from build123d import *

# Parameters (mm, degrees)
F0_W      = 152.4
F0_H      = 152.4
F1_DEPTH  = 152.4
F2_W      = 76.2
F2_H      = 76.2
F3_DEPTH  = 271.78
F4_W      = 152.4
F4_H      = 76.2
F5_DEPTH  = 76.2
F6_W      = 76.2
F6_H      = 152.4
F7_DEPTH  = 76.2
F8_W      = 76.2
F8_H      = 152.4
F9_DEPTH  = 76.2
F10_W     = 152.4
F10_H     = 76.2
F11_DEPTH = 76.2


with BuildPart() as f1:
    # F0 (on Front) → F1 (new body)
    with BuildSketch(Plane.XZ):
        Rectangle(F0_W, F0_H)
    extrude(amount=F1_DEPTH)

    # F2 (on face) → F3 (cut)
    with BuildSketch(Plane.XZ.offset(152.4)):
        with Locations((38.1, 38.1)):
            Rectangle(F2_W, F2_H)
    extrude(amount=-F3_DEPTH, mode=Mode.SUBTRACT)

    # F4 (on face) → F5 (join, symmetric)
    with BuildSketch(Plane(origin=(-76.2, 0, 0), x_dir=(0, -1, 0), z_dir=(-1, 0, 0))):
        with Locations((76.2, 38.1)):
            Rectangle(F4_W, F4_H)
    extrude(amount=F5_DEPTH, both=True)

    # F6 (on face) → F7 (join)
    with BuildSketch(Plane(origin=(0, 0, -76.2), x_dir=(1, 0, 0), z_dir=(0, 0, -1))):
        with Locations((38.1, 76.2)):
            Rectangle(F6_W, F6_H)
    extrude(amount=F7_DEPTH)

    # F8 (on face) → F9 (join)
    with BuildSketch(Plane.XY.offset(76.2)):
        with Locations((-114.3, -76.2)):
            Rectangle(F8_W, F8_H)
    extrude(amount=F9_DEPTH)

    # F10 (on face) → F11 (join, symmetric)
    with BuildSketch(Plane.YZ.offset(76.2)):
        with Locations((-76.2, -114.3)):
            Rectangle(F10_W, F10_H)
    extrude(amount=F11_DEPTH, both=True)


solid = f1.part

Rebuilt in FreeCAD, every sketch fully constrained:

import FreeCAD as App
import Part
import Sketcher
from FreeCAD import Vector
Q = App.Units.Quantity


def add_polygon(sketch, points):
    """Adds a closed chain of lines whose ends are joined by coincident constraints."""
    first, n = sketch.GeometryCount, len(points)
    for a, b in zip(points, points[1:] + points[:1]):
        sketch.addGeometry(Part.LineSegment(App.Vector(*a, 0), App.Vector(*b, 0)), False)
    for i in range(n):
        sketch.addConstraint(Sketcher.Constraint("Coincident", first + i, 2, first + (i + 1) % n, 1))

doc = App.newDocument("Part")
body = doc.addObject("PartDesign::Body", "Body")

sketch1 = body.newObject("Sketcher::SketchObject", "Sketch")
sketch1.AttachmentSupport = (doc.getObject("XZ_Plane"), [""])
sketch1.MapMode = "FlatFace"
add_polygon(sketch1, [(-76.2, 76.2), (-76.2, -76.2), (76.2, -76.2), (76.2, 76.2)])
sketch1.addConstraint(Sketcher.Constraint("Vertical", 0))
sketch1.addConstraint(Sketcher.Constraint("Horizontal", 1))
sketch1.addConstraint(Sketcher.Constraint("Vertical", 2))
sketch1.addConstraint(Sketcher.Constraint("Horizontal", 3))
sketch1.addConstraint(Sketcher.Constraint("Symmetric", 0, 2, 2, 2, -1, 1))
sketch1.addConstraint(Sketcher.Constraint("Equal", 3, 0))
sketch1.addConstraint(Sketcher.Constraint("DistanceX", 1, 1, 1, 2, Q("6 in")))
pad1 = body.newObject("PartDesign::Pad", "Pad")
pad1.Profile = sketch1
pad1.Length = Q("6 in")

sketch2 = body.newObject("Sketcher::SketchObject", "Sketch001")
sketch2.AttachmentSupport = (doc.getObject("XZ_Plane"), [""])
sketch2.MapMode = "FlatFace"
sketch2.AttachmentOffset = App.Placement(Vector(0, 0, 6 * 25.4), App.Rotation())
add_polygon(sketch2, [(0, 76.2), (0, 0), (76.2, 0), (76.2, 76.2)])
sketch2.addConstraint(Sketcher.Constraint("Vertical", 0))
sketch2.addConstraint(Sketcher.Constraint("Horizontal", 1))
sketch2.addConstraint(Sketcher.Constraint("Vertical", 2))
sketch2.addConstraint(Sketcher.Constraint("Horizontal", 3))
sketch2.addConstraint(Sketcher.Constraint("Coincident", 0, 2, -1, 1))
sketch2.addConstraint(Sketcher.Constraint("Equal", 3, 0))
sketch2.addConstraint(Sketcher.Constraint("DistanceX", 1, 1, 1, 2, Q("3 in")))
pocket1 = body.newObject("PartDesign::Pocket", "Pocket")
pocket1.Profile = sketch2
pocket1.Length = Q("10.7 in")

sketch3 = body.newObject("Sketcher::SketchObject", "Sketch002")
sketch3.AttachmentSupport = (doc.getObject("YZ_Plane"), [""])
sketch3.MapMode = "FlatFace"
sketch3.AttachmentOffset = App.Placement(Vector(0, 0, -3 * 25.4), App.Rotation())
add_polygon(sketch3, [(0, 76.2), (0, 0), (-152.4, 0), (-152.4, 76.2)])
sketch3.addConstraint(Sketcher.Constraint("Vertical", 0))
sketch3.addConstraint(Sketcher.Constraint("Horizontal", 1))
sketch3.addConstraint(Sketcher.Constraint("Vertical", 2))
sketch3.addConstraint(Sketcher.Constraint("Horizontal", 3))
sketch3.addConstraint(Sketcher.Constraint("Coincident", 0, 2, -1, 1))
sketch3.addConstraint(Sketcher.Constraint("DistanceX", 1, 2, 1, 1, Q("6 in")))
sketch3.addConstraint(Sketcher.Constraint("DistanceY", 0, 2, 0, 1, Q("3 in")))
pad2 = body.newObject("PartDesign::Pad", "Pad001")
pad2.Profile = sketch3
pad2.Length = Q("6 in")
pad2.Midplane = True

sketch4 = body.newObject("Sketcher::SketchObject", "Sketch003")
sketch4.AttachmentSupport = (doc.getObject("XY_Plane"), [""])
sketch4.MapMode = "FlatFace"
sketch4.AttachmentOffset = App.Placement(Vector(0, 0, -3 * 25.4), App.Rotation())
add_polygon(sketch4, [(0, -152.4), (0, 0), (76.2, 0), (76.2, -152.4)])
sketch4.addConstraint(Sketcher.Constraint("Vertical", 0))
sketch4.addConstraint(Sketcher.Constraint("Horizontal", 1))
sketch4.addConstraint(Sketcher.Constraint("Vertical", 2))
sketch4.addConstraint(Sketcher.Constraint("Horizontal", 3))
sketch4.addConstraint(Sketcher.Constraint("Coincident", 0, 2, -1, 1))
sketch4.addConstraint(Sketcher.Constraint("DistanceX", 1, 1, 1, 2, Q("3 in")))
sketch4.addConstraint(Sketcher.Constraint("DistanceY", 0, 1, 0, 2, Q("6 in")))
pad3 = body.newObject("PartDesign::Pad", "Pad002")
pad3.Profile = sketch4
pad3.Length = Q("3 in")
pad3.Reversed = True

sketch5 = body.newObject("Sketcher::SketchObject", "Sketch004")
sketch5.AttachmentSupport = (doc.getObject("XY_Plane"), [""])
sketch5.MapMode = "FlatFace"
sketch5.AttachmentOffset = App.Placement(Vector(0, 0, 3 * 25.4), App.Rotation())
add_polygon(sketch5, [(-152.4, 0), (-152.4, -152.4), (-76.2, -152.4), (-76.2, 0)])
sketch5.addConstraint(Sketcher.Constraint("Vertical", 0))
sketch5.addConstraint(Sketcher.Constraint("Horizontal", 1))
sketch5.addConstraint(Sketcher.Constraint("Vertical", 2))
sketch5.addConstraint(Sketcher.Constraint("Horizontal", 3))
sketch5.addConstraint(Sketcher.Constraint("PointOnObject", 2, 2, -1))
sketch5.addConstraint(Sketcher.Constraint("DistanceX", 1, 1, 1, 2, Q("3 in")))
sketch5.addConstraint(Sketcher.Constraint("DistanceY", 0, 2, 0, 1, Q("6 in")))
sketch5.addConstraint(Sketcher.Constraint("DistanceX", 0, 2, -1, 1, Q("6 in")))
pad4 = body.newObject("PartDesign::Pad", "Pad003")
pad4.Profile = sketch5
pad4.Length = Q("3 in")

sketch6 = body.newObject("Sketcher::SketchObject", "Sketch005")
sketch6.AttachmentSupport = (doc.getObject("YZ_Plane"), [""])
sketch6.MapMode = "FlatFace"
sketch6.AttachmentOffset = App.Placement(Vector(0, 0, 3 * 25.4), App.Rotation())
add_polygon(sketch6, [(-152.4, -76.2), (-152.4, -152.4), (0, -152.4), (0, -76.2)])
sketch6.addConstraint(Sketcher.Constraint("Vertical", 0))
sketch6.addConstraint(Sketcher.Constraint("Horizontal", 1))
sketch6.addConstraint(Sketcher.Constraint("Vertical", 2))
sketch6.addConstraint(Sketcher.Constraint("Horizontal", 3))
sketch6.addConstraint(Sketcher.Constraint("PointOnObject", 1, 2, -2))
sketch6.addConstraint(Sketcher.Constraint("DistanceX", 1, 1, 1, 2, Q("6 in")))
sketch6.addConstraint(Sketcher.Constraint("DistanceY", 0, 2, 0, 1, Q("3 in")))
sketch6.addConstraint(Sketcher.Constraint("DistanceY", 0, 2, -1, 1, Q("6 in")))
pad5 = body.newObject("PartDesign::Pad", "Pad004")
pad5.Profile = sketch6
pad5.Length = Q("6 in")
pad5.Midplane = True

doc.recompute()
